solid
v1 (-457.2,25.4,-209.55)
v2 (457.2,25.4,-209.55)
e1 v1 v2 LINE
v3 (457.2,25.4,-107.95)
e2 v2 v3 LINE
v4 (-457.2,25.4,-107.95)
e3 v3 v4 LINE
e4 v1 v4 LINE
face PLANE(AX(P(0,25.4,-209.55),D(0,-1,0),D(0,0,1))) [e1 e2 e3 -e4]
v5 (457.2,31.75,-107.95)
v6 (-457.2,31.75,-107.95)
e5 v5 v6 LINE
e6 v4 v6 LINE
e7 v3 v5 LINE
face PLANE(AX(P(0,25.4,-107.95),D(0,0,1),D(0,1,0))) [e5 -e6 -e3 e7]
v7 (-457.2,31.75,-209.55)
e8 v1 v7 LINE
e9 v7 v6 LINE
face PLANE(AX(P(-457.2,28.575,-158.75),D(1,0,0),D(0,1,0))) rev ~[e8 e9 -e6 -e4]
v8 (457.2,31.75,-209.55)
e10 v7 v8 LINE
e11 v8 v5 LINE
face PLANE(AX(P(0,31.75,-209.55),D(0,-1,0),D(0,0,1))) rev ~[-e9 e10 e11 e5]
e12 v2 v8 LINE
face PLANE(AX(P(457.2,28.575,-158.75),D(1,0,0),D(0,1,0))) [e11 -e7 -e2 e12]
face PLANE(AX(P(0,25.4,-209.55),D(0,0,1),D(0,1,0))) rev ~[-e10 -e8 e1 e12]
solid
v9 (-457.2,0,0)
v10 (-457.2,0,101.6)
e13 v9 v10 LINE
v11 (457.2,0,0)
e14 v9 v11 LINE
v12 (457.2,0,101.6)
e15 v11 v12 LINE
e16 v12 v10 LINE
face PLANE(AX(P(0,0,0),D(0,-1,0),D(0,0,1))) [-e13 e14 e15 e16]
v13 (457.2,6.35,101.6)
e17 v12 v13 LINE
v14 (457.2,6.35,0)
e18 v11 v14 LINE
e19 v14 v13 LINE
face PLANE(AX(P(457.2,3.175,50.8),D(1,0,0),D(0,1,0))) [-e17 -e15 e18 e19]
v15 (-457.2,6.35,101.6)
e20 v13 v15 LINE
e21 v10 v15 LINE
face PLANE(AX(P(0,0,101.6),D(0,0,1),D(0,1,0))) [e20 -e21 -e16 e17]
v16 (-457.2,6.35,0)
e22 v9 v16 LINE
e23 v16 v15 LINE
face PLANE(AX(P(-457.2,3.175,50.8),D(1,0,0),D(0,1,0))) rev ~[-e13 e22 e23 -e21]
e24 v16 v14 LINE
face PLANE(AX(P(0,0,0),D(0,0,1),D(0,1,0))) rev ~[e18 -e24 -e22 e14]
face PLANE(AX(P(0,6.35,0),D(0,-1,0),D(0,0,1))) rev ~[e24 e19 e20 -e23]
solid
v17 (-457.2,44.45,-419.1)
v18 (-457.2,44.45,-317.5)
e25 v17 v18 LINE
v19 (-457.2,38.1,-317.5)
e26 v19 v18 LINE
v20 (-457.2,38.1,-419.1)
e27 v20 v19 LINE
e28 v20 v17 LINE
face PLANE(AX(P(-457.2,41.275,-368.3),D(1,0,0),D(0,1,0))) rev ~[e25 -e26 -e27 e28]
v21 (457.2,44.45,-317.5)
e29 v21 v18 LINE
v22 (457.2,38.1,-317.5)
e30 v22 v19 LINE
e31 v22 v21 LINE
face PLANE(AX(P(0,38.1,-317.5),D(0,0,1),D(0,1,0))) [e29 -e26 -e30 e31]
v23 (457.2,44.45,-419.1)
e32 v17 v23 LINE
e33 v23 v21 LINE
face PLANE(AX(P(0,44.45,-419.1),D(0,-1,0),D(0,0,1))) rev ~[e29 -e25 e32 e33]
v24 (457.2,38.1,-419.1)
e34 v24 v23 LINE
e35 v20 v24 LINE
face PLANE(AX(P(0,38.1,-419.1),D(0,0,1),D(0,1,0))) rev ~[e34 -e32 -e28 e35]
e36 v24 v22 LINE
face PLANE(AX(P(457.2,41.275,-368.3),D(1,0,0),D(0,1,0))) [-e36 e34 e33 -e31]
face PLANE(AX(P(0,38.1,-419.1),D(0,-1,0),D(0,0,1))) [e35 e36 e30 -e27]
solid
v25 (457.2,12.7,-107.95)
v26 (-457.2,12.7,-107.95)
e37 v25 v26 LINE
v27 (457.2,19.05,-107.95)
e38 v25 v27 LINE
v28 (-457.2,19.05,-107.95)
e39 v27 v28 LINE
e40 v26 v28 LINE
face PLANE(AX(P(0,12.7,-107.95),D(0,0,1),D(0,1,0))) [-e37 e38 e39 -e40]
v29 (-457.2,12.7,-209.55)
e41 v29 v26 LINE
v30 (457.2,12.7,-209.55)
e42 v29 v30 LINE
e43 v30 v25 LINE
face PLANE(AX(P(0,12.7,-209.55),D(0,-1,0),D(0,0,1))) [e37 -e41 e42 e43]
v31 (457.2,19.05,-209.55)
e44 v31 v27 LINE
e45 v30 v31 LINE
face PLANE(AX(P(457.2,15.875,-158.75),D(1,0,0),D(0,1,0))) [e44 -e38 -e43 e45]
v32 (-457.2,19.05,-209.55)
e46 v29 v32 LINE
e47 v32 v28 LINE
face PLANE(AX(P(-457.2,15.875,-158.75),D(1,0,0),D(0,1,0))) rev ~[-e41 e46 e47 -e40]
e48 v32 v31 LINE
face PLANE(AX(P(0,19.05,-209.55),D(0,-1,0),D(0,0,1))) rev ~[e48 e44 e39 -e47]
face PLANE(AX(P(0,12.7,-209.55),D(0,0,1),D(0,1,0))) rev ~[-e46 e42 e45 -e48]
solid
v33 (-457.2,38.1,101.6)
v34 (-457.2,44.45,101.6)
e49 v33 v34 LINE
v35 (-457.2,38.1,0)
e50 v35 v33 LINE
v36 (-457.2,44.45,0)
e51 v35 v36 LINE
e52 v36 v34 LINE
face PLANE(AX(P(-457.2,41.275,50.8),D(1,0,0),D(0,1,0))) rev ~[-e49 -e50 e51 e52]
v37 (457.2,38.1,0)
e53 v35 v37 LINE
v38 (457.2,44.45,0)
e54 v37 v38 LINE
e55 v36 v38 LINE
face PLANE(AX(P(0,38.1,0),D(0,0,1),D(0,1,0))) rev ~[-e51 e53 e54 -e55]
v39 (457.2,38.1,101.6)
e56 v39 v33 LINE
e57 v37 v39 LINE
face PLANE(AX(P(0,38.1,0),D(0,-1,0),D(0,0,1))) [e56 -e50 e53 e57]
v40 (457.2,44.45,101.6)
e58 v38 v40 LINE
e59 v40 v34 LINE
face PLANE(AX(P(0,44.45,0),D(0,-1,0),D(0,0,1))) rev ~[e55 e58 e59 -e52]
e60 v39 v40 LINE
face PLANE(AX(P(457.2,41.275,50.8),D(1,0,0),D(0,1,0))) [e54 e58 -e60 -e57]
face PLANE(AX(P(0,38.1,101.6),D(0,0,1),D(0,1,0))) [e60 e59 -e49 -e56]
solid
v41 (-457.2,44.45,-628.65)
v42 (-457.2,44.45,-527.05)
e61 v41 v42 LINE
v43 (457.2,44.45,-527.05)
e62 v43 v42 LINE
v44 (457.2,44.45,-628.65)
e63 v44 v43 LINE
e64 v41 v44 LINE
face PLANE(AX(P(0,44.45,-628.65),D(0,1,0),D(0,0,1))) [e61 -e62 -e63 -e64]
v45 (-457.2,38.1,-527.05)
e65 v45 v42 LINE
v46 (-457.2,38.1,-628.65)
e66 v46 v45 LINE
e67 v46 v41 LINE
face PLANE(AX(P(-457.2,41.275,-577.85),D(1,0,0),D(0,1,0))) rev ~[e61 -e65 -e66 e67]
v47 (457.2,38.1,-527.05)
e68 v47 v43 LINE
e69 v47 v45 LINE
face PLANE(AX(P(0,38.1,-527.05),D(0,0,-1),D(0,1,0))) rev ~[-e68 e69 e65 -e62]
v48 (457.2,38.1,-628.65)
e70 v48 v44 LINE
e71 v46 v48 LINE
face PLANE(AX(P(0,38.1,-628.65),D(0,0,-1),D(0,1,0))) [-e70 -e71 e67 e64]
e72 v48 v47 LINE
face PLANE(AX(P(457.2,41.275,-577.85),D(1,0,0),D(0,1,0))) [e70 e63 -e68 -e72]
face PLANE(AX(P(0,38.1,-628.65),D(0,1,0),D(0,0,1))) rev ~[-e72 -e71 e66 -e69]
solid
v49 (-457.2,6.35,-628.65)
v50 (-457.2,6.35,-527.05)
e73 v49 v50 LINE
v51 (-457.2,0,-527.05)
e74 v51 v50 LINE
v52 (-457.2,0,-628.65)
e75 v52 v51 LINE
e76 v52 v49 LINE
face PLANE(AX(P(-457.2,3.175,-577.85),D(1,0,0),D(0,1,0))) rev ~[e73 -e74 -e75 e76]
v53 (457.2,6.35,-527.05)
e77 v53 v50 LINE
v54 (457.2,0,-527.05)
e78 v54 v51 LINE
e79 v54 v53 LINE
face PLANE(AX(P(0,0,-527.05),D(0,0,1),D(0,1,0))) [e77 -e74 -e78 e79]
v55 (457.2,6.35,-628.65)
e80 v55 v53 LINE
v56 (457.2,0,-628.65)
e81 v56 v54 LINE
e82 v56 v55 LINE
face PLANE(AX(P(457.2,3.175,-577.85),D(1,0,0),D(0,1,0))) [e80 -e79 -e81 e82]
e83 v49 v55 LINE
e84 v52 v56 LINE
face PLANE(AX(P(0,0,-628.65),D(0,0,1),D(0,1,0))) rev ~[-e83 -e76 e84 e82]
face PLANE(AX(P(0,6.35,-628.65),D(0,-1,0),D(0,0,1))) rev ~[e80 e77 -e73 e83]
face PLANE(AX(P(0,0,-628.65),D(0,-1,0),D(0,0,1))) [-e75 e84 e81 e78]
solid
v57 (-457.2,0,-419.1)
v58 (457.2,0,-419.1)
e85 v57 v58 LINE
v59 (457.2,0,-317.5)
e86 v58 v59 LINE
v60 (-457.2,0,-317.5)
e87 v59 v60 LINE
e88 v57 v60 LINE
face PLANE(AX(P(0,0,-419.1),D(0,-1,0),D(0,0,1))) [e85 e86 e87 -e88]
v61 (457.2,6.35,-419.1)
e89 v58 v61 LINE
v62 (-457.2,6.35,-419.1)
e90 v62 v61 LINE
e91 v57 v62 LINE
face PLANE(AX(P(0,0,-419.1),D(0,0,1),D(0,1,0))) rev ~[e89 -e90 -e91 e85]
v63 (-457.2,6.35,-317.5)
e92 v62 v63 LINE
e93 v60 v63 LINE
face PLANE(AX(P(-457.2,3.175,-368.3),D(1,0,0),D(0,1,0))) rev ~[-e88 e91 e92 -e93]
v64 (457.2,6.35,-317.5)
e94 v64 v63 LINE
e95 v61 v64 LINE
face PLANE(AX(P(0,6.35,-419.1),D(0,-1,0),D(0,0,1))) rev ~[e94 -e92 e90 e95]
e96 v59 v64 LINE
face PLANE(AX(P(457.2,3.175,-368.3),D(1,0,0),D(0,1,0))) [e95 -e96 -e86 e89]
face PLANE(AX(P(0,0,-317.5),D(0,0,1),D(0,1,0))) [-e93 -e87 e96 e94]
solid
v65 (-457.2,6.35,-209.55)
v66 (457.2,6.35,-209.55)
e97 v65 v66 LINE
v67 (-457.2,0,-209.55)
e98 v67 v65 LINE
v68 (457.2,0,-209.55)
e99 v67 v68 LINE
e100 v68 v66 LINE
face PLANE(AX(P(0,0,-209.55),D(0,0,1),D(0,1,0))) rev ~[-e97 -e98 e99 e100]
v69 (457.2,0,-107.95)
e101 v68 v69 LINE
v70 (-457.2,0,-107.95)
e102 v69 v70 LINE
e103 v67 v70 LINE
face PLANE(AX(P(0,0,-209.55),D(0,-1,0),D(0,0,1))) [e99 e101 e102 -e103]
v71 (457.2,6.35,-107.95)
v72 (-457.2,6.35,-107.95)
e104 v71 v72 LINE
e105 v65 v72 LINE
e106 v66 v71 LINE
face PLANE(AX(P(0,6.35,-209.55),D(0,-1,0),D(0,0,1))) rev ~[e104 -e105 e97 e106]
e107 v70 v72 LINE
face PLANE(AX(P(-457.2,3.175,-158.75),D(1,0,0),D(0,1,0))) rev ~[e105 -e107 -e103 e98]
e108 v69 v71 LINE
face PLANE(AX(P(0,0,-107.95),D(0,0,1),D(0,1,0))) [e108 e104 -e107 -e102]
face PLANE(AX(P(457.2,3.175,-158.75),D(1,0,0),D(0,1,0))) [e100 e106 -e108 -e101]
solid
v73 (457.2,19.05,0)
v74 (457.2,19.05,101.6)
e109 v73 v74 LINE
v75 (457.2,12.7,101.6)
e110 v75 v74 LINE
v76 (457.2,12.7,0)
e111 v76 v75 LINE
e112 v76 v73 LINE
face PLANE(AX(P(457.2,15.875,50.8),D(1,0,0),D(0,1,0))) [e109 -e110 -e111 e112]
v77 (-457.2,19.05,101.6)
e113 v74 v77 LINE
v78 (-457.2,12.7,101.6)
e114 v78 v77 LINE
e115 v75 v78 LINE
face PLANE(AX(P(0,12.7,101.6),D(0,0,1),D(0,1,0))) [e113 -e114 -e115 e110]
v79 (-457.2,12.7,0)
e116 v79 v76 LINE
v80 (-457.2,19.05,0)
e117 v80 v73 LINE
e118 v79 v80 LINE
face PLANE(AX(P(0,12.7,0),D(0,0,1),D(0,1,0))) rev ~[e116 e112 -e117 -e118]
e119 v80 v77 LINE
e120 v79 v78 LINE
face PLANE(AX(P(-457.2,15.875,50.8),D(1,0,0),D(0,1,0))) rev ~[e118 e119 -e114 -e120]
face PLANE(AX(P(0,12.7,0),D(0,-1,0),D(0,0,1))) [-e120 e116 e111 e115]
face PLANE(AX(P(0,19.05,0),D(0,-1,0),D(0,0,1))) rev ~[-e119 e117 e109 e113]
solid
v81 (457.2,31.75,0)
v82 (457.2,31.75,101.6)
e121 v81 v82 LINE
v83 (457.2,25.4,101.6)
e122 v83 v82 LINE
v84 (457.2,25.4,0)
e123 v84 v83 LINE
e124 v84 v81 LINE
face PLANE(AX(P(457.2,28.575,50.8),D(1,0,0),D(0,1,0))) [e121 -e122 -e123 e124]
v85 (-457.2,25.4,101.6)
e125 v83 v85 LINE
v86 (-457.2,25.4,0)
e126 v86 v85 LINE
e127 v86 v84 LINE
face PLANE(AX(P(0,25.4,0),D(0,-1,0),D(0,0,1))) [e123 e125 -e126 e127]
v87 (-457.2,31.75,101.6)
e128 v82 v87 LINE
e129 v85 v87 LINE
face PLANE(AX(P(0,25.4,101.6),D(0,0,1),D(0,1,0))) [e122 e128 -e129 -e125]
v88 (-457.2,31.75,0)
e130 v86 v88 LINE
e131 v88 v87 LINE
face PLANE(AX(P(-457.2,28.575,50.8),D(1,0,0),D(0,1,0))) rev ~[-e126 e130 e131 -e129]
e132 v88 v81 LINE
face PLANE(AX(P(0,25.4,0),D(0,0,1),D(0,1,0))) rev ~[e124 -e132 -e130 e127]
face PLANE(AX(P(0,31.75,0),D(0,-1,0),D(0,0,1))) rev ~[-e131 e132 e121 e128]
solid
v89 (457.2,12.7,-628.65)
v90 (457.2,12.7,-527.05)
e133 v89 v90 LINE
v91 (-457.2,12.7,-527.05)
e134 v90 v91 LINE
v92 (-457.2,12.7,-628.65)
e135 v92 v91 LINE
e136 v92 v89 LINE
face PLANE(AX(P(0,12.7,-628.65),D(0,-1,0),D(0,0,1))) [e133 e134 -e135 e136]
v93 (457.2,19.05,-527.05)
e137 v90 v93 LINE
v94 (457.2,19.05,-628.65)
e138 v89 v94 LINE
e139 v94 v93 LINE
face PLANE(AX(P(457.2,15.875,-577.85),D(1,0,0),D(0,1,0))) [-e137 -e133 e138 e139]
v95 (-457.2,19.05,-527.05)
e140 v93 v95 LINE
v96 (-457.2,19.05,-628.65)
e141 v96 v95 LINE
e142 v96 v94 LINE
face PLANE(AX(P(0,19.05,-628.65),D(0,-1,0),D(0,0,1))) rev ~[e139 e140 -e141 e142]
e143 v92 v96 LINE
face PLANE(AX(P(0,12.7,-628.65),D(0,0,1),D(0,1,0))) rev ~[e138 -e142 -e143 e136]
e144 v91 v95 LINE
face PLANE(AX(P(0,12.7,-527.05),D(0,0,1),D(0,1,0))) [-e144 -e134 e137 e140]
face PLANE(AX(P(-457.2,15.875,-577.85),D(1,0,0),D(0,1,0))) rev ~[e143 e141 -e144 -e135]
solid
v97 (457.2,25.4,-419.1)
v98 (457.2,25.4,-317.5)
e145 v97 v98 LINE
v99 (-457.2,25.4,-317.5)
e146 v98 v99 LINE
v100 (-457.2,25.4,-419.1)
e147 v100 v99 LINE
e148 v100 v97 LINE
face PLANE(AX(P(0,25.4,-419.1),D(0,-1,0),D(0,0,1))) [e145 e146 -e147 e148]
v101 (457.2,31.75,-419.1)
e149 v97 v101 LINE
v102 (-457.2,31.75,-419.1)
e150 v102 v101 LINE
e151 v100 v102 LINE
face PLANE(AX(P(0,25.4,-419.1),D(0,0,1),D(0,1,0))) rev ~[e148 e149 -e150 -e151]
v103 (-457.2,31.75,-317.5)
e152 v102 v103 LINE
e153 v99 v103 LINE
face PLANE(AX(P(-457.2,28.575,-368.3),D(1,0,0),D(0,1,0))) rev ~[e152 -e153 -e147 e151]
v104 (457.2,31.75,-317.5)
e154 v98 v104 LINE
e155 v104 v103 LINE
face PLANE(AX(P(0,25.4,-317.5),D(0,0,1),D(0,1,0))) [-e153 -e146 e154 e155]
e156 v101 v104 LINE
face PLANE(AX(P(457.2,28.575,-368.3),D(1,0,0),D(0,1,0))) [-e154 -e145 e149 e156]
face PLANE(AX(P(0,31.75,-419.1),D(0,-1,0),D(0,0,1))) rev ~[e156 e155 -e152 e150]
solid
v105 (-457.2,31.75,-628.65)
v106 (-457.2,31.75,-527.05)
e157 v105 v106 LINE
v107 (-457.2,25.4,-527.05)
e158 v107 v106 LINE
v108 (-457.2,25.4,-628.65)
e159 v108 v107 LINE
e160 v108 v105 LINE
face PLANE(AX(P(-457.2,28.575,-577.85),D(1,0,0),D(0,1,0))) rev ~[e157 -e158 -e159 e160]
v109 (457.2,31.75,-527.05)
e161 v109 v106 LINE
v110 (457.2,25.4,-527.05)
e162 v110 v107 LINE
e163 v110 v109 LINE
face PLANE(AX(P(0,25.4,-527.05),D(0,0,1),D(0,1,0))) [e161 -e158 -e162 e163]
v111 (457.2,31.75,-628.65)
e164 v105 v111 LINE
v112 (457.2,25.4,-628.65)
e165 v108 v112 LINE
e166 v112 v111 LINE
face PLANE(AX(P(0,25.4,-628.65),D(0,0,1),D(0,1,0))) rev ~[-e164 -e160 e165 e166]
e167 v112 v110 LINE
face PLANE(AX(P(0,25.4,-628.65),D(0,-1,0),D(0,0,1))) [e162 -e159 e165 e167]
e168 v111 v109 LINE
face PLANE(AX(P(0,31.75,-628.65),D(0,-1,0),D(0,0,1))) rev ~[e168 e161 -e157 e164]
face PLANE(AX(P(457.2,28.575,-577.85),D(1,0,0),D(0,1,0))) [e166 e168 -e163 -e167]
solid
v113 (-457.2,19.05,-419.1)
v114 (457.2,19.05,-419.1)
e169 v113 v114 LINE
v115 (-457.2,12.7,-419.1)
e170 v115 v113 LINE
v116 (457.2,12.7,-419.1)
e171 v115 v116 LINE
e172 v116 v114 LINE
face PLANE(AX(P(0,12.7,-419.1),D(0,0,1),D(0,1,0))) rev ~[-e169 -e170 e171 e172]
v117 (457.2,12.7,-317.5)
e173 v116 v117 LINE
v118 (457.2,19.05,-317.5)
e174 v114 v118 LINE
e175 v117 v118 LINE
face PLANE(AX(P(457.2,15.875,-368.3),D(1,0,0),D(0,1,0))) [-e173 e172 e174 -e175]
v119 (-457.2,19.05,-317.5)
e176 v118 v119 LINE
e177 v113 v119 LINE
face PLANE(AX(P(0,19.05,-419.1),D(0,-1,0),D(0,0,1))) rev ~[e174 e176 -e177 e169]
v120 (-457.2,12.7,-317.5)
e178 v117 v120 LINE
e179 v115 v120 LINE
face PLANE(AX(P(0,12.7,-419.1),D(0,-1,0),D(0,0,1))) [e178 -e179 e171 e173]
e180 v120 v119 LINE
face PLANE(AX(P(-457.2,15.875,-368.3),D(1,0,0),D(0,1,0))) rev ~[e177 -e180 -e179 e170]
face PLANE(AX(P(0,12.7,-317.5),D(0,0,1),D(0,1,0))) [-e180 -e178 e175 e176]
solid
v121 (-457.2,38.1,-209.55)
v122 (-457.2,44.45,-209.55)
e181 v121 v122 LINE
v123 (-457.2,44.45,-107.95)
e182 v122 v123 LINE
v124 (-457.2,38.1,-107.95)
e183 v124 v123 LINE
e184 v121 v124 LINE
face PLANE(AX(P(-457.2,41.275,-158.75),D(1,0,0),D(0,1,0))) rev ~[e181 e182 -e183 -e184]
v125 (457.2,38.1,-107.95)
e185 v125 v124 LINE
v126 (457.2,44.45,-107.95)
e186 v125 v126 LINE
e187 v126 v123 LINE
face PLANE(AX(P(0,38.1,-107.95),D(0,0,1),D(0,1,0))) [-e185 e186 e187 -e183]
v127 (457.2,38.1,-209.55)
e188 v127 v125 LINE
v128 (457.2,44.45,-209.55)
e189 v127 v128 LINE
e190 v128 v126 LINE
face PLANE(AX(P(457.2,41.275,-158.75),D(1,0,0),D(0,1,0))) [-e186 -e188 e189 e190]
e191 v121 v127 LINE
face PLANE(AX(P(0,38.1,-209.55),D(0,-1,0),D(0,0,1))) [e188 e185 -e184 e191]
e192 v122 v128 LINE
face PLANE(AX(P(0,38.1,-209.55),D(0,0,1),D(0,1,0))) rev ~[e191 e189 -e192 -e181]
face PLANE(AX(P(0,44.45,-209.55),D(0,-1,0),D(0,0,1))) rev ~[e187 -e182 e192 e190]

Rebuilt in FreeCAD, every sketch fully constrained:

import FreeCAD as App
import Part
import Sketcher
from FreeCAD import Vector
Q = App.Units.Quantity


def add_polygon(sketch, points):
    """Adds a closed chain of lines whose ends are joined by coincident constraints."""
    first, n = sketch.GeometryCount, len(points)
    for a, b in zip(points, points[1:] + points[:1]):
        sketch.addGeometry(Part.LineSegment(App.Vector(*a, 0), App.Vector(*b, 0)), False)
    for i in range(n):
        sketch.addConstraint(Sketcher.Constraint("Coincident", first + i, 2, first + (i + 1) % n, 1))

doc = App.newDocument("Part")
body = doc.addObject("PartDesign::Body", "Body")
body.AllowCompound = True

# Sketch on YZ plane
sketch1 = body.newObject("Sketcher::SketchObject", "Sketch")
sketch1.AttachmentSupport = (doc.getObject("YZ_Plane"), [""])
sketch1.MapMode = "FlatFace"
add_polygon(sketch1, [(0, 102), (0, 0), (6, 0), (6, 102)])  # lines 0-3
add_polygon(sketch1, [(0, -108), (0, -210), (6, -210), (6, -108)])  # lines 4-7
add_polygon(sketch1, [(0, -318), (0, -419), (6, -419), (6, -318)])  # lines 8-11
add_polygon(sketch1, [(0, -527), (0, -629), (6, -629), (6, -527)])  # lines 12-15
add_polygon(sketch1, [(13, 102), (13, 0), (19, 0), (19, 102)])  # lines 16-19
add_polygon(sketch1, [(13, -108), (13, -210), (19, -210), (19, -108)])  # lines 20-23
add_polygon(sketch1, [(13, -318), (13, -419), (19, -419), (19, -318)])  # lines 24-27
add_polygon(sketch1, [(13, -527), (13, -629), (19, -629), (19, -527)])  # lines 28-31
add_polygon(sketch1, [(25, 102), (25, 0), (32, 0), (32, 102)])  # lines 32-35
add_polygon(sketch1, [(25, -108), (25, -210), (32, -210), (32, -108)])  # lines 36-39
add_polygon(sketch1, [(25, -318), (25, -419), (32, -419), (32, -318)])  # lines 40-43
add_polygon(sketch1, [(25, -527), (25, -629), (32, -629), (32, -527)])  # lines 44-47
add_polygon(sketch1, [(38, 102), (38, 0), (44, 0), (44, 102)])  # lines 48-51
add_polygon(sketch1, [(38, -108), (38, -210), (44, -210), (44, -108)])  # lines 52-55
add_polygon(sketch1, [(38, -318), (38, -419), (44, -419), (44, -318)])  # lines 56-59
add_polygon(sketch1, [(38, -527), (38, -629), (44, -629), (44, -527)])  # lines 60-63
sketch1.addConstraint([
    Sketcher.Constraint("Vertical", 0),
    Sketcher.Constraint("Horizontal", 1),
    Sketcher.Constraint("Vertical", 2),
    Sketcher.Constraint("Horizontal", 3),
    Sketcher.Constraint("Vertical", 4),
    Sketcher.Constraint("Horizontal", 5),
    Sketcher.Constraint("Vertical", 6),
    Sketcher.Constraint("Horizontal", 7),
    Sketcher.Constraint("Vertical", 8),
    Sketcher.Constraint("Horizontal", 9),
    Sketcher.Constraint("Vertical", 10),
    Sketcher.Constraint("Horizontal", 11),
    Sketcher.Constraint("Vertical", 12),
    Sketcher.Constraint("Horizontal", 13),
    Sketcher.Constraint("Vertical", 14),
    Sketcher.Constraint("Horizontal", 15),
    Sketcher.Constraint("Vertical", 16),
    Sketcher.Constraint("Horizontal", 17),
    Sketcher.Constraint("Vertical", 18),
    Sketcher.Constraint("Horizontal", 19),
    Sketcher.Constraint("Vertical", 20),
    Sketcher.Constraint("Horizontal", 21),
    Sketcher.Constraint("Vertical", 22),
    Sketcher.Constraint("Horizontal", 23),
    Sketcher.Constraint("Vertical", 24),
    Sketcher.Constraint("Horizontal", 25),
    Sketcher.Constraint("Vertical", 26),
    Sketcher.Constraint("Horizontal", 27),
    Sketcher.Constraint("Vertical", 28),
    Sketcher.Constraint("Horizontal", 29),
    Sketcher.Constraint("Vertical", 30),
    Sketcher.Constraint("Horizontal", 31),
    Sketcher.Constraint("Vertical", 32),
    Sketcher.Constraint("Horizontal", 33),
    Sketcher.Constraint("Vertical", 34),
    Sketcher.Constraint("Horizontal", 35),
    Sketcher.Constraint("Vertical", 36),
    Sketcher.Constraint("Horizontal", 37),
    Sketcher.Constraint("Vertical", 38),
    Sketcher.Constraint("Horizontal", 39),
    Sketcher.Constraint("Vertical", 40),
    Sketcher.Constraint("Horizontal", 41),
    Sketcher.Constraint("Vertical", 42),
    Sketcher.Constraint("Horizontal", 43),
    Sketcher.Constraint("Vertical", 44),
    Sketcher.Constraint("Horizontal", 45),
    Sketcher.Constraint("Vertical", 46),
    Sketcher.Constraint("Horizontal", 47),
    Sketcher.Constraint("Vertical", 48),
    Sketcher.Constraint("Horizontal", 49),
    Sketcher.Constraint("Vertical", 50),
    Sketcher.Constraint("Horizontal", 51),
    Sketcher.Constraint("Vertical", 52),
    Sketcher.Constraint("Horizontal", 53),
    Sketcher.Constraint("Vertical", 54),
    Sketcher.Constraint("Horizontal", 55),
    Sketcher.Constraint("Vertical", 56),
    Sketcher.Constraint("Horizontal", 57),
    Sketcher.Constraint("Vertical", 58),
    Sketcher.Constraint("Horizontal", 59),
    Sketcher.Constraint("Vertical", 60),
    Sketcher.Constraint("Horizontal", 61),
    Sketcher.Constraint("Vertical", 62),
    Sketcher.Constraint("Horizontal", 63),
    Sketcher.Constraint("Coincident", 0, 2, -1, 1),
    Sketcher.Constraint("PointOnObject", 4, 2, -2),
    Sketcher.Constraint("PointOnObject", 8, 2, -2),
    Sketcher.Constraint("PointOnObject", 12, 2, -2),
    Sketcher.Constraint("PointOnObject", 16, 2, -1),
    Sketcher.Constraint("PointOnObject", 32, 2, -1),
    Sketcher.Constraint("PointOnObject", 48, 2, -1),
    Sketcher.Constraint("Horizontal", 3, 2, 18, 2),
    Sketcher.Constraint("Horizontal", 5, 2, 20, 2),
    Sketcher.Constraint("Horizontal", 7, 2, 22, 2),
    Sketcher.Constraint("Horizontal", 9, 2, 24, 2),
    Sketcher.Constraint("Horizontal", 11, 2, 26, 2),
    Sketcher.Constraint("Horizontal", 13, 2, 28, 2),
    Sketcher.Constraint("Horizontal", 15, 2, 30, 2),
    Sketcher.Constraint("Horizontal", 19, 2, 34, 2),
    Sketcher.Constraint("Horizontal", 21, 2, 36, 2),
    Sketcher.Constraint("Horizontal", 23, 2, 38, 2),
    Sketcher.Constraint("Horizontal", 25, 2, 40, 2),
    Sketcher.Constraint("Horizontal", 27, 2, 42, 2),
    Sketcher.Constraint("Horizontal", 29, 2, 44, 2),
    Sketcher.Constraint("Horizontal", 31, 2, 46, 2),
    Sketcher.Constraint("Horizontal", 35, 2, 50, 2),
    Sketcher.Constraint("Horizontal", 37, 2, 52, 2),
    Sketcher.Constraint("Horizontal", 39, 2, 54, 2),
    Sketcher.Constraint("Horizontal", 41, 2, 56, 2),
    Sketcher.Constraint("Horizontal", 43, 2, 58, 2),
    Sketcher.Constraint("Horizontal", 45, 2, 60, 2),
    Sketcher.Constraint("Horizontal", 47, 2, 62, 2),
    Sketcher.Constraint("Vertical", 2, 2, 5, 2),
    Sketcher.Constraint("Vertical", 6, 2, 9, 2),
    Sketcher.Constraint("Vertical", 10, 2, 13, 2),
    Sketcher.Constraint("Vertical", 19, 2, 20, 2),
    Sketcher.Constraint("Vertical", 18, 2, 21, 2),
    Sketcher.Constraint("Vertical", 23, 2, 24, 2),
    Sketcher.Constraint("Vertical", 22, 2, 25, 2),
    Sketcher.Constraint("Vertical", 27, 2, 28, 2),
    Sketcher.Constraint("Vertical", 26, 2, 29, 2),
    Sketcher.Constraint("Vertical", 35, 2, 36, 2),
    Sketcher.Constraint("Vertical", 34, 2, 37, 2),
    Sketcher.Constraint("Vertical", 39, 2, 40, 2),
    Sketcher.Constraint("Vertical", 38, 2, 41, 2),
    Sketcher.Constraint("Vertical", 43, 2, 44, 2),
    Sketcher.Constraint("Vertical", 42, 2, 45, 2),
    Sketcher.Constraint("Vertical", 51, 2, 52, 2),
    Sketcher.Constraint("Vertical", 50, 2, 53, 2),
    Sketcher.Constraint("Vertical", 55, 2, 56, 2),
    Sketcher.Constraint("Vertical", 54, 2, 57, 2),
    Sketcher.Constraint("Vertical", 59, 2, 60, 2),
    Sketcher.Constraint("Vertical", 58, 2, 61, 2),
    Sketcher.Constraint("Equal", 15, 17),
    Sketcher.Constraint("Equal", 31, 33),
    Sketcher.Constraint("Equal", 47, 49),
    Sketcher.Constraint("Equal", 2, 4),
    Sketcher.Constraint("Equal", 6, 8),
    Sketcher.Constraint("Equal", 10, 12),
    Sketcher.Constraint("DistanceY", 0, 2, 0, 1, Q("4 in")),
    Sketcher.Constraint("DistanceX", -1, 1, 32, 2, Q("1 in")),
    Sketcher.Constraint("DistanceX", 1, 1, 1, 2, Q("0.25 in")),
    Sketcher.Constraint("DistanceY", 8, 2, -1, 1, Q("16.5 in")),
    Sketcher.Constraint("DistanceX", -1, 1, 16, 2, Q("0.5 in")),
    Sketcher.Constraint("DistanceX", -1, 1, 48, 2, Q("1.5 in")),
    Sketcher.Constraint("DistanceY", 4, 2, -1, 1, Q("8.25 in")),
    Sketcher.Constraint("DistanceY", 12, 2, -1, 1, Q("24.75 in")),
])
pad1 = body.newObject("PartDesign::Pad", "Pad")
pad1.Profile = sketch1
pad1.Length = Q("36 in")
pad1.Midplane = True

doc.recompute()
